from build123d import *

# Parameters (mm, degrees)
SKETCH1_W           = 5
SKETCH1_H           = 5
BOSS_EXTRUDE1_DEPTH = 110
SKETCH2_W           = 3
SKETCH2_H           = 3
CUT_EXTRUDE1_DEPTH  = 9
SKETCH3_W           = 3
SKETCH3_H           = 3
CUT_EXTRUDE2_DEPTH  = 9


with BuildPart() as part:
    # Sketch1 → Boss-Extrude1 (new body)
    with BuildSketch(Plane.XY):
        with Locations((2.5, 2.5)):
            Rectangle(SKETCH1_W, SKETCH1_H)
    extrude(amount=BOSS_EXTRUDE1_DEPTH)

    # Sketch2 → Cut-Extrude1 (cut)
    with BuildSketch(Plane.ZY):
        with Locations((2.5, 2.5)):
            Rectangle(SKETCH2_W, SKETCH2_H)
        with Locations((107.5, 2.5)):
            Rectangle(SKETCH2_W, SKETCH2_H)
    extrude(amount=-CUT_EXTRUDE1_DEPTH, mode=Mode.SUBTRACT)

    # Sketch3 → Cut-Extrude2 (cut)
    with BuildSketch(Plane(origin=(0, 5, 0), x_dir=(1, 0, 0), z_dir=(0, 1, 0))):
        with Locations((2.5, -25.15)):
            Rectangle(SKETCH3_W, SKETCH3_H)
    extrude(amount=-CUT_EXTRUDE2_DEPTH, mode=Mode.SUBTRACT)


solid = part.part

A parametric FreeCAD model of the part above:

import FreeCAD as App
import Part
import Sketcher
Q = App.Units.Quantity

doc = App.newDocument("Part")
body = doc.addObject("PartDesign::Body", "Body")

# Sketch on XY plane
sketch1 = body.newObject("Sketcher::SketchObject", "Sketch")
sketch1.AttachmentSupport = (doc.getObject("XY_Plane"), [""])
sketch1.MapMode = "FlatFace"
sketch1.addGeometry(Part.LineSegment(App.Vector(0, 5, 0), App.Vector(0, 0, 0)), False)
sketch1.addGeometry(Part.LineSegment(App.Vector(0, 0, 0), App.Vector(5, 0, 0)), False)
sketch1.addGeometry(Part.LineSegment(App.Vector(5, 0, 0), App.Vector(5, 5, 0)), False)
sketch1.addGeometry(Part.LineSegment(App.Vector(5, 5, 0), App.Vector(0, 5, 0)), False)
sketch1.addConstraint(Sketcher.Constraint("Coincident", 0, 2, 1, 1))
sketch1.addConstraint(Sketcher.Constraint("Coincident", 1, 2, 2, 1))
sketch1.addConstraint(Sketcher.Constraint("Coincident", 2, 2, 3, 1))
sketch1.addConstraint(Sketcher.Constraint("Coincident", 3, 2, 0, 1))
sketch1.addConstraint(Sketcher.Constraint("Vertical", 0))
sketch1.addConstraint(Sketcher.Constraint("Horizontal", 1))
sketch1.addConstraint(Sketcher.Constraint("Vertical", 2))
sketch1.addConstraint(Sketcher.Constraint("Horizontal", 3))
sketch1.addConstraint(Sketcher.Constraint("Coincident", 0, 2, -1, 1))
sketch1.addConstraint(Sketcher.Constraint("Equal", 3, 0))
sketch1.addConstraint(Sketcher.Constraint("DistanceX", 1, 1, 1, 2, Q("5 mm")))
pad1 = body.newObject("PartDesign::Pad", "Pad")
pad1.Profile = sketch1
pad1.Length = 110

# Sketch on YZ plane
sketch2 = body.newObject("Sketcher::SketchObject", "Sketch001")
sketch2.AttachmentSupport = (doc.getObject("YZ_Plane"), [""])
sketch2.MapMode = "FlatFace"
sketch2.addGeometry(Part.LineSegment(App.Vector(4, 1, 0), App.Vector(1, 1, 0)), False)
sketch2.addGeometry(Part.LineSegment(App.Vector(1, 1, 0), App.Vector(1, 4, 0)), False)
sketch2.addGeometry(Part.LineSegment(App.Vector(1, 4, 0), App.Vector(4, 4, 0)), False)
sketch2.addGeometry(Part.LineSegment(App.Vector(4, 4, 0), App.Vector(4, 1, 0)), False)
sketch2.addGeometry(Part.LineSegment(App.Vector(4, 106, 0), App.Vector(1, 106, 0)), False)
sketch2.addGeometry(Part.LineSegment(App.Vector(1, 106, 0), App.Vector(1, 109, 0)), False)
sketch2.addGeometry(Part.LineSegment(App.Vector(1, 109, 0), App.Vector(4, 109, 0)), False)
sketch2.addGeometry(Part.LineSegment(App.Vector(4, 109, 0), App.Vector(4, 106, 0)), False)
sketch2.addConstraint(Sketcher.Constraint("Coincident", 0, 2, 1, 1))
sketch2.addConstraint(Sketcher.Constraint("Coincident", 1, 2, 2, 1))
sketch2.addConstraint(Sketcher.Constraint("Coincident", 2, 2, 3, 1))
sketch2.addConstraint(Sketcher.Constraint("Coincident", 3, 2, 0, 1))
sketch2.addConstraint(Sketcher.Constraint("Coincident", 4, 2, 5, 1))
sketch2.addConstraint(Sketcher.Constraint("Coincident", 5, 2, 6, 1))
sketch2.addConstraint(Sketcher.Constraint("Coincident", 6, 2, 7, 1))
sketch2.addConstraint(Sketcher.Constraint("Coincident", 7, 2, 4, 1))
sketch2.addConstraint(Sketcher.Constraint("Horizontal", 0))
sketch2.addConstraint(Sketcher.Constraint("Vertical", 1))
sketch2.addConstraint(Sketcher.Constraint("Horizontal", 2))
sketch2.addConstraint(Sketcher.Constraint("Vertical", 3))
sketch2.addConstraint(Sketcher.Constraint("Horizontal", 4))
sketch2.addConstraint(Sketcher.Constraint("Vertical", 5))
sketch2.addConstraint(Sketcher.Constraint("Horizontal", 6))
sketch2.addConstraint(Sketcher.Constraint("Vertical", 7))
sketch2.addConstraint(Sketcher.Constraint("Vertical", 1, 2, 4, 2))
sketch2.addConstraint(Sketcher.Constraint("Vertical", 3, 2, 6, 2))
sketch2.addConstraint(Sketcher.Constraint("Equal", 6, 1))
sketch2.addConstraint(Sketcher.Constraint("Equal", 3, 5))
sketch2.addConstraint(Sketcher.Constraint("DistanceX", 0, 2, 0, 1, Q("3 mm")))
sketch2.addConstraint(Sketcher.Constraint("DistanceX", -1, 1, 0, 2, Q("1 mm")))
sketch2.addConstraint(Sketcher.Constraint("DistanceY", -1, 1, 0, 2, Q("1 mm")))
sketch2.addConstraint(Sketcher.Constraint("DistanceY", -1, 1, 4, 2, Q("106 mm")))
pocket1 = body.newObject("PartDesign::Pocket", "Pocket")
pocket1.Profile = sketch2
pocket1.Length = 9
pocket1.Reversed = True

# Sketch on XZ plane
sketch3 = body.newObject("Sketcher::SketchObject", "Sketch002")
sketch3.AttachmentSupport = (doc.getObject("XZ_Plane"), [""])
sketch3.MapMode = "FlatFace"
sketch3.AttachmentOffset = App.Placement(App.Vector(0, 0, -5), App.Rotation())
sketch3.addGeometry(Part.LineSegment(App.Vector(1, 23.6, 0), App.Vector(1, 26.6, 0)), False)
sketch3.addGeometry(Part.LineSegment(App.Vector(1, 26.6, 0), App.Vector(4, 26.6, 0)), False)
sketch3.addGeometry(Part.LineSegment(App.Vector(4, 26.6, 0), App.Vector(4, 23.6, 0)), False)
sketch3.addGeometry(Part.LineSegment(App.Vector(4, 23.6, 0), App.Vector(1, 23.6, 0)), False)
sketch3.addConstraint(Sketcher.Constraint("Coincident", 0, 2, 1, 1))
sketch3.addConstraint(Sketcher.Constraint("Coincident", 1, 2, 2, 1))
sketch3.addConstraint(Sketcher.Constraint("Coincident", 2, 2, 3, 1))
sketch3.addConstraint(Sketcher.Constraint("Coincident", 3, 2, 0, 1))
sketch3.addConstraint(Sketcher.Constraint("Vertical", 0))
sketch3.addConstraint(Sketcher.Constraint("Horizontal", 1))
sketch3.addConstraint(Sketcher.Constraint("Vertical", 2))
sketch3.addConstraint(Sketcher.Constraint("Horizontal", 3))
sketch3.addConstraint(Sketcher.Constraint("Equal", 3, 0))
sketch3.addConstraint(Sketcher.Constraint("DistanceX", 1, 1, 1, 2, Q("3 mm")))
sketch3.addConstraint(Sketcher.Constraint("DistanceX", -1, 1, 0, 2, Q("1 mm")))
sketch3.addConstraint(Sketcher.Constraint("DistanceY", -1, 1, 0, 2, Q("26.65 mm")))
pocket2 = body.newObject("PartDesign::Pocket", "Pocket001")
pocket2.Profile = sketch3
pocket2.Length = 9
pocket2.Reversed = True

doc.recompute()
